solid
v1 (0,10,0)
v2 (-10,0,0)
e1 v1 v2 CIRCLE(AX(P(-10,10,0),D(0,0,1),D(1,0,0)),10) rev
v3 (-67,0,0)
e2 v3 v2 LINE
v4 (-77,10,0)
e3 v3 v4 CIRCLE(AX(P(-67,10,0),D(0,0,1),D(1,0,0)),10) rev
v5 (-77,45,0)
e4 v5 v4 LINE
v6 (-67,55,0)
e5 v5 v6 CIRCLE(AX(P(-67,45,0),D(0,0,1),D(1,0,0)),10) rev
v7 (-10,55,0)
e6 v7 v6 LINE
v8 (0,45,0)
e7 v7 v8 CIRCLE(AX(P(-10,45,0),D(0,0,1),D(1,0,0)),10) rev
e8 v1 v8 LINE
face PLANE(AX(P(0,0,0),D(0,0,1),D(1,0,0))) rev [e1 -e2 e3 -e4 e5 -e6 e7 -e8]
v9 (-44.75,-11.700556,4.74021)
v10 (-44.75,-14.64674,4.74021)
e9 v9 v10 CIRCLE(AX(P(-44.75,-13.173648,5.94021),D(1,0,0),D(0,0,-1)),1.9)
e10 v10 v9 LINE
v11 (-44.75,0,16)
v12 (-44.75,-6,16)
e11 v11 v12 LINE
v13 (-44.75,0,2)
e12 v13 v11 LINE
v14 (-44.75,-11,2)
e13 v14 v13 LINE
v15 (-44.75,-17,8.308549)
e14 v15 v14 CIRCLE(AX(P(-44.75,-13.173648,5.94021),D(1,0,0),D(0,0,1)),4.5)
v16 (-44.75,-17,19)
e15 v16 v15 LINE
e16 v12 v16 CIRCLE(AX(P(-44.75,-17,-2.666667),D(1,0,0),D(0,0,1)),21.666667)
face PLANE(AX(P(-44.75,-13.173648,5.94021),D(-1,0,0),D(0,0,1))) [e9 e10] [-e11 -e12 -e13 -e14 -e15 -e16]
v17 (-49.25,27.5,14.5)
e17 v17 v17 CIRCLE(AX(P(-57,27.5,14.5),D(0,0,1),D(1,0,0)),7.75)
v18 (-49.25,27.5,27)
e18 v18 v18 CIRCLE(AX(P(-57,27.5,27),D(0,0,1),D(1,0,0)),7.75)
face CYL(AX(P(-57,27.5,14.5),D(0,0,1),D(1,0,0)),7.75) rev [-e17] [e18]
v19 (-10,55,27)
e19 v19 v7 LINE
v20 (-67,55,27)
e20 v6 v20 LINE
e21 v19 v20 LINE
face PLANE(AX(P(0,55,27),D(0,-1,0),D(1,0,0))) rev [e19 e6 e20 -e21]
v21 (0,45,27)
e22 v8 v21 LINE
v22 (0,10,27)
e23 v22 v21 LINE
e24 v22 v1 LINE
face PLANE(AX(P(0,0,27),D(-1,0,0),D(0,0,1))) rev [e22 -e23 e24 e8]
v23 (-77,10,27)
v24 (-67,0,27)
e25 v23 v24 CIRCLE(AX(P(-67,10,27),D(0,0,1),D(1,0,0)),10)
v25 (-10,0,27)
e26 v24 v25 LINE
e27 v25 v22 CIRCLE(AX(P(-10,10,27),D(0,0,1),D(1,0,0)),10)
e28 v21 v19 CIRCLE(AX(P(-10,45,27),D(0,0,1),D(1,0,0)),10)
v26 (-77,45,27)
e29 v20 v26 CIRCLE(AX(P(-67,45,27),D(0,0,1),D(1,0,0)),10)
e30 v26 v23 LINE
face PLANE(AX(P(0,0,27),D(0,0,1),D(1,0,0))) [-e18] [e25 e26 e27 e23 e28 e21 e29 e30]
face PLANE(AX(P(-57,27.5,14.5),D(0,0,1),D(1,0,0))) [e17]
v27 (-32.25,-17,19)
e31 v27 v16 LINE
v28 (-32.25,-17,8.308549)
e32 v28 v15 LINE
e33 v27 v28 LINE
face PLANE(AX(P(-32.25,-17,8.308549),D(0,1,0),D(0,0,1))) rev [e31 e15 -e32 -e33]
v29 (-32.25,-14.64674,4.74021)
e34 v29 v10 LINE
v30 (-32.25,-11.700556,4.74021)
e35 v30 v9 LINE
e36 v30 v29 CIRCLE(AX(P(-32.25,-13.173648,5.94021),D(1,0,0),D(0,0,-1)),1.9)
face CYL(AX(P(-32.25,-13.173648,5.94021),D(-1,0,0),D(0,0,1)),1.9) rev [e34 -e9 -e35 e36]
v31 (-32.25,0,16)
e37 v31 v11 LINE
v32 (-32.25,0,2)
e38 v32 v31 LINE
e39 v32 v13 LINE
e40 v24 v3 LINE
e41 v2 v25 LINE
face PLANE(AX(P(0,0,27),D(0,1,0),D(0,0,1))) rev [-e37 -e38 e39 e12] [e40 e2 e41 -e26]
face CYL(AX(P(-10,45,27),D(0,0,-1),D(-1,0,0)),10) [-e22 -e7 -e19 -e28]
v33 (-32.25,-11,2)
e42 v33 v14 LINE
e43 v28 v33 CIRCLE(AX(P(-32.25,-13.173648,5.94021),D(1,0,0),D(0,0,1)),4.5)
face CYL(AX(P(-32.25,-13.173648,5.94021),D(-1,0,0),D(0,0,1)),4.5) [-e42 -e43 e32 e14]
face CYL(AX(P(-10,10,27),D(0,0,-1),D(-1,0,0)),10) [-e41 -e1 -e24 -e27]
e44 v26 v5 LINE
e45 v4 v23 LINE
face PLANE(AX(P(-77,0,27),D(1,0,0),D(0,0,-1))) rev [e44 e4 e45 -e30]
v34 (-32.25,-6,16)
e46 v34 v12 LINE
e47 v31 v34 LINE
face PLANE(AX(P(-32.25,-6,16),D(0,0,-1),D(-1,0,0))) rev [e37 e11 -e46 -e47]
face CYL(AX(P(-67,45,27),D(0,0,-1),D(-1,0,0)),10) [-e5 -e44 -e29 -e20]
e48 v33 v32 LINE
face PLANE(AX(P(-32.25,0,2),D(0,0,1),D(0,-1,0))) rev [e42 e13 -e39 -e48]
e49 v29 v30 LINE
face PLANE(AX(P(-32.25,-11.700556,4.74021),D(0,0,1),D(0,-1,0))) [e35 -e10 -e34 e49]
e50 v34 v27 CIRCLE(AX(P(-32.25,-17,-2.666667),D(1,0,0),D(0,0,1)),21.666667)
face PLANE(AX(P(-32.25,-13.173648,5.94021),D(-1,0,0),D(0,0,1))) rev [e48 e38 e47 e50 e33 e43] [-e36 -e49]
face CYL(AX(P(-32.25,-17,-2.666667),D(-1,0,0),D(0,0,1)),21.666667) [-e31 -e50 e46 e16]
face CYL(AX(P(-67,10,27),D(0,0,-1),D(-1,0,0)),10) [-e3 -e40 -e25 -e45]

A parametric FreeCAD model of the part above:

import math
import FreeCAD as App
import Part
import Sketcher
from FreeCAD import Vector
Q = App.Units.Quantity


def edges_at(feature, points):
    """Names of the edges that pass closest to the given points."""
    edges = feature.Shape.Edges
    near = lambda p: min(range(len(edges)), key=lambda i: edges[i].distToShape(Part.Vertex(*p))[0])
    return sorted({f"Edge{near(p) + 1}" for p in points})

doc = App.newDocument("Part")
params = doc.addObject("Spreadsheet::Sheet", "Params")
for row, (alias, value) in enumerate([
    ("sketch1_width", "77 mm"),
    ("sketch1_height", "55 mm"),
    ("pad1_length", "27 mm"),
    ("fillet_radius", "10 mm"),
    ("sketch2_radius", "4.5 mm"),
    ("sketch2_radius2", "1.9 mm"),
    ("sketch2_width", "11 mm"),
    ("sketch2_width2", "6 mm"),
    ("sketch2_height", "14 mm"),
    ("pad2_length", "12.5 mm"),
    ("sketch3_diameter", "15.5 mm"),
    ("pocket1_length", "12.5 mm"),
], start=1):
    params.set(f"A{row}", alias)
    params.set(f"B{row}", "=" + value)
    params.setAlias(f"B{row}", alias)

body = doc.addObject("PartDesign::Body", "Body")

# Sketch on XY plane
sketch1 = doc.addObject("Sketcher::SketchObject", "Sketch")
body.addObject(sketch1)
sketch1.AttachmentSupport = (doc.XY_Plane, [""])
sketch1.MapMode = "FlatFace"
sketch1.addGeometry(Part.LineSegment(Vector(-77, 55, 0), Vector(-77, 0, 0)), False)
sketch1.addGeometry(Part.LineSegment(Vector(-77, 0, 0), Vector(0, 0, 0)), False)
sketch1.addGeometry(Part.LineSegment(Vector(0, 0, 0), Vector(0, 55, 0)), False)
sketch1.addGeometry(Part.LineSegment(Vector(0, 55, 0), Vector(-77, 55, 0)), False)
sketch1.addConstraint(Sketcher.Constraint("Coincident", 0, 2, 1, 1))
sketch1.addConstraint(Sketcher.Constraint("Coincident", 1, 2, 2, 1))
sketch1.addConstraint(Sketcher.Constraint("Coincident", 2, 2, 3, 1))
sketch1.addConstraint(Sketcher.Constraint("Coincident", 3, 2, 0, 1))
sketch1.addConstraint(Sketcher.Constraint("Vertical", 0))
sketch1.addConstraint(Sketcher.Constraint("Horizontal", 1))
sketch1.addConstraint(Sketcher.Constraint("Vertical", 2))
sketch1.addConstraint(Sketcher.Constraint("Horizontal", 3))
sketch1.addConstraint(Sketcher.Constraint("Coincident", 1, 2, -1, 1))
sketch1.addConstraint(Sketcher.Constraint("DistanceX", 1, 1, 1, 2, Q("77 mm")))
sketch1.addConstraint(Sketcher.Constraint("DistanceY", 0, 2, 0, 1, Q("55 mm")))
sketch1.setExpression("Constraints[9]", "Params.sketch1_width")
sketch1.setExpression("Constraints[10]", "Params.sketch1_height")
pad1 = doc.addObject("PartDesign::Pad", "Pad")
body.addObject(pad1)
pad1.Profile = sketch1
pad1.setExpression("Length", "Params.pad1_length")
doc.recompute()

fillet = doc.addObject("PartDesign::Fillet", "Fillet")
body.addObject(fillet)
fillet.Base = (pad1, edges_at(pad1, [
    (0, 0, 13.5),
    (-77, 0, 13.5),
    (-77, 55, 13.5),
    (0, 55, 13.5),
]))
fillet.setExpression("Radius", "Params.fillet_radius")

# Sketch on YZ plane
sketch2 = doc.addObject("Sketcher::SketchObject", "Sketch001")
body.addObject(sketch2)
sketch2.AttachmentSupport = (doc.YZ_Plane, [""])
sketch2.MapMode = "FlatFace"
sketch2.AttachmentOffset = App.Placement(Vector(0, 0, -44.75), App.Rotation())
sketch2.addGeometry(Part.LineSegment(Vector(-11, 2, 0), Vector(0, 2, 0)), False)
sketch2.addGeometry(Part.LineSegment(Vector(0, 2, 0), Vector(0, 16, 0)), False)
sketch2.addGeometry(Part.LineSegment(Vector(0, 16, 0), Vector(-6, 16, 0)), False)
sketch2.addGeometry(Part.ArcOfCircle(Part.Circle(Vector(-17, -2.7, 0), Vector(0, 0, 1), 21.7), math.radians(59), math.radians(90)), False)
sketch2.addGeometry(Part.LineSegment(Vector(-17, 19, 0), Vector(-17, 8.3, 0)), False)
sketch2.addGeometry(Part.ArcOfCircle(Part.Circle(Vector(-13.2, 5.9, 0), Vector(0, 0, 1), 4.5), math.radians(148), math.radians(299)), False)
sketch2.addGeometry(Part.LineSegment(Vector(-11.7, 4.7, 0), Vector(-14.6, 4.7, 0)), False)
sketch2.addGeometry(Part.ArcOfCircle(Part.Circle(Vector(-13.2, 5.9, 0), Vector(0, 0, 1), 1.9), math.radians(-39), math.radians(219)), False)
sketch2.addConstraint(Sketcher.Constraint("Coincident", 0, 2, 1, 1))
sketch2.addConstraint(Sketcher.Constraint("Coincident", 1, 2, 2, 1))
sketch2.addConstraint(Sketcher.Constraint("Coincident", 2, 2, 3, 1))
sketch2.addConstraint(Sketcher.Constraint("Coincident", 3, 2, 4, 1))
sketch2.addConstraint(Sketcher.Constraint("Coincident", 4, 2, 5, 1))
sketch2.addConstraint(Sketcher.Constraint("Coincident", 5, 2, 0, 1))
sketch2.addConstraint(Sketcher.Constraint("Coincident", 6, 1, 7, 1))
sketch2.addConstraint(Sketcher.Constraint("Coincident", 7, 2, 6, 2))
sketch2.addConstraint(Sketcher.Constraint("Horizontal", 0))
sketch2.addConstraint(Sketcher.Constraint("Vertical", 1))
sketch2.addConstraint(Sketcher.Constraint("Horizontal", 2))
sketch2.addConstraint(Sketcher.Constraint("Vertical", 4))
sketch2.addConstraint(Sketcher.Constraint("Horizontal", 6))
sketch2.addConstraint(Sketcher.Constraint("Coincident", 7, 3, 5, 3))
sketch2.addConstraint(Sketcher.Constraint("PointOnObject", 0, 2, -2))
sketch2.addConstraint(Sketcher.Constraint("Radius", 5, Q("4.5 mm")))
sketch2.addConstraint(Sketcher.Constraint("Radius", 7, Q("1.9 mm")))
sketch2.addConstraint(Sketcher.Constraint("DistanceX", 0, 1, 0, 2, Q("11 mm")))
sketch2.addConstraint(Sketcher.Constraint("DistanceX", 2, 2, 2, 1, Q("6 mm")))
sketch2.addConstraint(Sketcher.Constraint("DistanceY", 1, 1, 1, 2, Q("14 mm")))
sketch2.addConstraint(Sketcher.Constraint("DistanceX", 3, 3, -1, 1, Q("17 mm")))
sketch2.addConstraint(Sketcher.Constraint("DistanceY", -1, 1, 0, 2, Q("2 mm")))
sketch2.addConstraint(Sketcher.Constraint("DistanceX", 3, 2, -1, 1, Q("17 mm")))
sketch2.addConstraint(Sketcher.Constraint("DistanceY", -1, 1, 3, 2, Q("19 mm")))
sketch2.addConstraint(Sketcher.Constraint("DistanceY", 6, 1, 5, 3, Q("1.2 mm")))
sketch2.addConstraint(Sketcher.Constraint("DistanceY", 4, 2, 4, 1, Q("10.691451 mm")))
sketch2.setExpression("Constraints[15]", "Params.sketch2_radius")
sketch2.setExpression("Constraints[16]", "Params.sketch2_radius2")
sketch2.setExpression("Constraints[17]", "Params.sketch2_width")
sketch2.setExpression("Constraints[18]", "Params.sketch2_width2")
sketch2.setExpression("Constraints[19]", "Params.sketch2_height")
pad2 = doc.addObject("PartDesign::Pad", "Pad001")
body.addObject(pad2)
pad2.Profile = sketch2
pad2.setExpression("Length", "Params.pad2_length")

# Sketch on XY plane
sketch3 = doc.addObject("Sketcher::SketchObject", "Sketch002")
body.addObject(sketch3)
sketch3.AttachmentSupport = (doc.XY_Plane, [""])
sketch3.MapMode = "FlatFace"
sketch3.AttachmentOffset = App.Placement(Vector(0, 0, 27), App.Rotation())
sketch3.addGeometry(Part.Circle(Vector(-57, 28, 0), Vector(0, 0, 1), 8), False)
sketch3.addConstraint(Sketcher.Constraint("Diameter", 0, Q("15.5 mm")))
sketch3.addConstraint(Sketcher.Constraint("DistanceX", 0, 3, -1, 1, Q("57 mm")))
sketch3.addConstraint(Sketcher.Constraint("DistanceY", -1, 1, 0, 3, Q("27.5 mm")))
sketch3.setExpression("Constraints[0]", "Params.sketch3_diameter")
pocket1 = doc.addObject("PartDesign::Pocket", "Pocket")
body.addObject(pocket1)
pocket1.Profile = sketch3
pocket1.setExpression("Length", "Params.pocket1_length")

doc.recompute()
